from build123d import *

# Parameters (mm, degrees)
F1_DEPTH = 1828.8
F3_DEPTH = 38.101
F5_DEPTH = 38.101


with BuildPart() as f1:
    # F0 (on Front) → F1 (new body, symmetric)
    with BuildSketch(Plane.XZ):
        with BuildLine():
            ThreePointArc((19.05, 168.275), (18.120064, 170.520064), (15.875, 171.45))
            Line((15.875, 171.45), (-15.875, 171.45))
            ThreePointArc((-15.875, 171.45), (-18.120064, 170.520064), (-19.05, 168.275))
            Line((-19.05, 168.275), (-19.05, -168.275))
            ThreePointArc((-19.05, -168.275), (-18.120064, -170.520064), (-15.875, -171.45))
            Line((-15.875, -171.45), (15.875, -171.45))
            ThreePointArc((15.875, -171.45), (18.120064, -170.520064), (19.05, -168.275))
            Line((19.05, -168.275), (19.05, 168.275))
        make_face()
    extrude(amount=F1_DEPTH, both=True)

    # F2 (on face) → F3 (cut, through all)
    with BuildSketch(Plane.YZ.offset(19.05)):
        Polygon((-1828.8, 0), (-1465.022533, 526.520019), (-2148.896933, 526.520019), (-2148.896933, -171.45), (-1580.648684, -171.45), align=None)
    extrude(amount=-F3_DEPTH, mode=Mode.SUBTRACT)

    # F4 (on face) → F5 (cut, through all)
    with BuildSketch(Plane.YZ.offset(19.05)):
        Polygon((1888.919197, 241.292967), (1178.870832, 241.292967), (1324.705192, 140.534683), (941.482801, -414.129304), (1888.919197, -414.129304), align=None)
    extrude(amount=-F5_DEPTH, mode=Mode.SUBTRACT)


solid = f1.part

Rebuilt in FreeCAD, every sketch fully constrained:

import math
import FreeCAD as App
import Part
import Sketcher
from FreeCAD import Vector
Q = App.Units.Quantity


def add_polygon(sketch, points):
    """Adds a closed chain of lines whose ends are joined by coincident constraints."""
    first, n = sketch.GeometryCount, len(points)
    for a, b in zip(points, points[1:] + points[:1]):
        sketch.addGeometry(Part.LineSegment(App.Vector(*a, 0), App.Vector(*b, 0)), False)
    for i in range(n):
        sketch.addConstraint(Sketcher.Constraint("Coincident", first + i, 2, first + (i + 1) % n, 1))

doc = App.newDocument("Part")
body = doc.addObject("PartDesign::Body", "Body")

# Sketch on XZ plane
sketch1 = body.newObject("Sketcher::SketchObject", "Sketch")
sketch1.AttachmentSupport = (doc.getObject("XZ_Plane"), [""])
sketch1.MapMode = "FlatFace"
sketch1.addGeometry([
    Part.ArcOfCircle(Part.Circle(Vector(15.9, 168.3, 0), Vector(0, 0, 1), 3.2), math.radians(0), math.radians(90)),  # 0
    Part.LineSegment(Vector(15.9, 171.4, 0), Vector(-15.9, 171.4, 0)),  # 1
    Part.ArcOfCircle(Part.Circle(Vector(-15.9, 168.3, 0), Vector(0, 0, 1), 3.2), math.radians(90), math.radians(180)),  # 2
    Part.LineSegment(Vector(-19.1, 168.3, 0), Vector(-19.1, -168.3, 0)),  # 3
    Part.ArcOfCircle(Part.Circle(Vector(-15.9, -168.3, 0), Vector(0, 0, 1), 3.2), math.radians(-180), math.radians(-90)),  # 4
    Part.LineSegment(Vector(-15.9, -171.4, 0), Vector(15.9, -171.4, 0)),  # 5
    Part.ArcOfCircle(Part.Circle(Vector(15.9, -168.3, 0), Vector(0, 0, 1), 3.2), math.radians(-90), math.radians(0)),  # 6
    Part.LineSegment(Vector(19.1, -168.3, 0), Vector(19.1, 168.3, 0)),  # 7
], False)
sketch1.addConstraint([
    Sketcher.Constraint("Tangent", 0, 2, 1, 1),
    Sketcher.Constraint("Tangent", 1, 2, 2, 1),
    Sketcher.Constraint("Tangent", 2, 2, 3, 1),
    Sketcher.Constraint("Tangent", 3, 2, 4, 1),
    Sketcher.Constraint("Tangent", 4, 2, 5, 1),
    Sketcher.Constraint("Tangent", 5, 2, 6, 1),
    Sketcher.Constraint("Tangent", 6, 2, 7, 1),
    Sketcher.Constraint("Tangent", 7, 2, 0, 1),
    Sketcher.Constraint("Horizontal", 1),
    Sketcher.Constraint("Vertical", 3),
    Sketcher.Constraint("Horizontal", 5),
    Sketcher.Constraint("Vertical", 7),
    Sketcher.Constraint("Equal", 0, 2),
    Sketcher.Constraint("Equal", 2, 4),
    Sketcher.Constraint("Equal", 4, 6),
    Sketcher.Constraint("Symmetric", 0, 3, 4, 3, -1, 1),
    Sketcher.Constraint("Radius", 0, Q("0.125 in")),
    Sketcher.Constraint("DistanceX", 1, 2, 1, 1, Q("1.25 in")),
    Sketcher.Constraint("DistanceY", 3, 2, 3, 1, Q("13.25 in")),
])
pad1 = body.newObject("PartDesign::Pad", "Pad")
pad1.Profile = sketch1
pad1.Length = Q("144 in")
pad1.Midplane = True

# Sketch on YZ plane
sketch2 = body.newObject("Sketcher::SketchObject", "Sketch001")
sketch2.AttachmentSupport = (doc.getObject("YZ_Plane"), [""])
sketch2.MapMode = "FlatFace"
sketch2.AttachmentOffset = App.Placement(Vector(0, 0, 0.75 * 25.4), App.Rotation())
add_polygon(sketch2, [(-1829, 0), (-1465, 527), (-2149, 527), (-2149, -171), (-1581, -171)])  # lines 0-4
sketch2.addConstraint([
    Sketcher.Constraint("Horizontal", 1),
    Sketcher.Constraint("Vertical", 2),
    Sketcher.Constraint("Horizontal", 3),
    Sketcher.Constraint("PointOnObject", 4, 2, -1),
    Sketcher.Constraint("Perpendicular", 0, 4),
    Sketcher.Constraint("DistanceX", 4, 2, -1, 1, Q("72 in")),
    Sketcher.Constraint("DistanceY", 2, 2, -1, 1, Q("6.75 in")),
    Sketcher.Constraint("DistanceX", 1, 2, 1, 1, 683.8744),
    Sketcher.Constraint("Distance", 0, 639.966699),
    Sketcher.Constraint("DistanceX", 3, 1, 3, 2, 568.248249),
])
pocket1 = body.newObject("PartDesign::Pocket", "Pocket")
pocket1.Profile = sketch2
pocket1.Type = "ThroughAll"

# Sketch on YZ plane
sketch3 = body.newObject("Sketcher::SketchObject", "Sketch002")
sketch3.AttachmentSupport = (doc.getObject("YZ_Plane"), [""])
sketch3.MapMode = "FlatFace"
sketch3.AttachmentOffset = App.Placement(Vector(0, 0, 0.75 * 25.4), App.Rotation())
add_polygon(sketch3, [(1889, 241), (1179, 241), (1325, 141), (941, -414), (1889, -414)])  # lines 0-4
sketch3.addConstraint([
    Sketcher.Constraint("Horizontal", 0),
    Sketcher.Constraint("Horizontal", 3),
    Sketcher.Constraint("Vertical", 4),
    Sketcher.Constraint("Perpendicular", 1, 2),
    Sketcher.Constraint("DistanceY", 4, 1, 4, 2, 655.422271),
    Sketcher.Constraint("DistanceX", -1, 1, 2, 2, 941.482801),
    Sketcher.Constraint("Distance", 2, 674.17471),
    Sketcher.Constraint("DistanceX", 0, 2, 0, 1, 710.048365),
    Sketcher.Constraint("DistanceX", 3, 1, 3, 2, 947.436396),
    Sketcher.Constraint("DistanceY", -1, 1, 0, 2, 241.292967),
])
pocket2 = body.newObject("PartDesign::Pocket", "Pocket001")
pocket2.Profile = sketch3
pocket2.Type = "ThroughAll"

doc.recompute()
